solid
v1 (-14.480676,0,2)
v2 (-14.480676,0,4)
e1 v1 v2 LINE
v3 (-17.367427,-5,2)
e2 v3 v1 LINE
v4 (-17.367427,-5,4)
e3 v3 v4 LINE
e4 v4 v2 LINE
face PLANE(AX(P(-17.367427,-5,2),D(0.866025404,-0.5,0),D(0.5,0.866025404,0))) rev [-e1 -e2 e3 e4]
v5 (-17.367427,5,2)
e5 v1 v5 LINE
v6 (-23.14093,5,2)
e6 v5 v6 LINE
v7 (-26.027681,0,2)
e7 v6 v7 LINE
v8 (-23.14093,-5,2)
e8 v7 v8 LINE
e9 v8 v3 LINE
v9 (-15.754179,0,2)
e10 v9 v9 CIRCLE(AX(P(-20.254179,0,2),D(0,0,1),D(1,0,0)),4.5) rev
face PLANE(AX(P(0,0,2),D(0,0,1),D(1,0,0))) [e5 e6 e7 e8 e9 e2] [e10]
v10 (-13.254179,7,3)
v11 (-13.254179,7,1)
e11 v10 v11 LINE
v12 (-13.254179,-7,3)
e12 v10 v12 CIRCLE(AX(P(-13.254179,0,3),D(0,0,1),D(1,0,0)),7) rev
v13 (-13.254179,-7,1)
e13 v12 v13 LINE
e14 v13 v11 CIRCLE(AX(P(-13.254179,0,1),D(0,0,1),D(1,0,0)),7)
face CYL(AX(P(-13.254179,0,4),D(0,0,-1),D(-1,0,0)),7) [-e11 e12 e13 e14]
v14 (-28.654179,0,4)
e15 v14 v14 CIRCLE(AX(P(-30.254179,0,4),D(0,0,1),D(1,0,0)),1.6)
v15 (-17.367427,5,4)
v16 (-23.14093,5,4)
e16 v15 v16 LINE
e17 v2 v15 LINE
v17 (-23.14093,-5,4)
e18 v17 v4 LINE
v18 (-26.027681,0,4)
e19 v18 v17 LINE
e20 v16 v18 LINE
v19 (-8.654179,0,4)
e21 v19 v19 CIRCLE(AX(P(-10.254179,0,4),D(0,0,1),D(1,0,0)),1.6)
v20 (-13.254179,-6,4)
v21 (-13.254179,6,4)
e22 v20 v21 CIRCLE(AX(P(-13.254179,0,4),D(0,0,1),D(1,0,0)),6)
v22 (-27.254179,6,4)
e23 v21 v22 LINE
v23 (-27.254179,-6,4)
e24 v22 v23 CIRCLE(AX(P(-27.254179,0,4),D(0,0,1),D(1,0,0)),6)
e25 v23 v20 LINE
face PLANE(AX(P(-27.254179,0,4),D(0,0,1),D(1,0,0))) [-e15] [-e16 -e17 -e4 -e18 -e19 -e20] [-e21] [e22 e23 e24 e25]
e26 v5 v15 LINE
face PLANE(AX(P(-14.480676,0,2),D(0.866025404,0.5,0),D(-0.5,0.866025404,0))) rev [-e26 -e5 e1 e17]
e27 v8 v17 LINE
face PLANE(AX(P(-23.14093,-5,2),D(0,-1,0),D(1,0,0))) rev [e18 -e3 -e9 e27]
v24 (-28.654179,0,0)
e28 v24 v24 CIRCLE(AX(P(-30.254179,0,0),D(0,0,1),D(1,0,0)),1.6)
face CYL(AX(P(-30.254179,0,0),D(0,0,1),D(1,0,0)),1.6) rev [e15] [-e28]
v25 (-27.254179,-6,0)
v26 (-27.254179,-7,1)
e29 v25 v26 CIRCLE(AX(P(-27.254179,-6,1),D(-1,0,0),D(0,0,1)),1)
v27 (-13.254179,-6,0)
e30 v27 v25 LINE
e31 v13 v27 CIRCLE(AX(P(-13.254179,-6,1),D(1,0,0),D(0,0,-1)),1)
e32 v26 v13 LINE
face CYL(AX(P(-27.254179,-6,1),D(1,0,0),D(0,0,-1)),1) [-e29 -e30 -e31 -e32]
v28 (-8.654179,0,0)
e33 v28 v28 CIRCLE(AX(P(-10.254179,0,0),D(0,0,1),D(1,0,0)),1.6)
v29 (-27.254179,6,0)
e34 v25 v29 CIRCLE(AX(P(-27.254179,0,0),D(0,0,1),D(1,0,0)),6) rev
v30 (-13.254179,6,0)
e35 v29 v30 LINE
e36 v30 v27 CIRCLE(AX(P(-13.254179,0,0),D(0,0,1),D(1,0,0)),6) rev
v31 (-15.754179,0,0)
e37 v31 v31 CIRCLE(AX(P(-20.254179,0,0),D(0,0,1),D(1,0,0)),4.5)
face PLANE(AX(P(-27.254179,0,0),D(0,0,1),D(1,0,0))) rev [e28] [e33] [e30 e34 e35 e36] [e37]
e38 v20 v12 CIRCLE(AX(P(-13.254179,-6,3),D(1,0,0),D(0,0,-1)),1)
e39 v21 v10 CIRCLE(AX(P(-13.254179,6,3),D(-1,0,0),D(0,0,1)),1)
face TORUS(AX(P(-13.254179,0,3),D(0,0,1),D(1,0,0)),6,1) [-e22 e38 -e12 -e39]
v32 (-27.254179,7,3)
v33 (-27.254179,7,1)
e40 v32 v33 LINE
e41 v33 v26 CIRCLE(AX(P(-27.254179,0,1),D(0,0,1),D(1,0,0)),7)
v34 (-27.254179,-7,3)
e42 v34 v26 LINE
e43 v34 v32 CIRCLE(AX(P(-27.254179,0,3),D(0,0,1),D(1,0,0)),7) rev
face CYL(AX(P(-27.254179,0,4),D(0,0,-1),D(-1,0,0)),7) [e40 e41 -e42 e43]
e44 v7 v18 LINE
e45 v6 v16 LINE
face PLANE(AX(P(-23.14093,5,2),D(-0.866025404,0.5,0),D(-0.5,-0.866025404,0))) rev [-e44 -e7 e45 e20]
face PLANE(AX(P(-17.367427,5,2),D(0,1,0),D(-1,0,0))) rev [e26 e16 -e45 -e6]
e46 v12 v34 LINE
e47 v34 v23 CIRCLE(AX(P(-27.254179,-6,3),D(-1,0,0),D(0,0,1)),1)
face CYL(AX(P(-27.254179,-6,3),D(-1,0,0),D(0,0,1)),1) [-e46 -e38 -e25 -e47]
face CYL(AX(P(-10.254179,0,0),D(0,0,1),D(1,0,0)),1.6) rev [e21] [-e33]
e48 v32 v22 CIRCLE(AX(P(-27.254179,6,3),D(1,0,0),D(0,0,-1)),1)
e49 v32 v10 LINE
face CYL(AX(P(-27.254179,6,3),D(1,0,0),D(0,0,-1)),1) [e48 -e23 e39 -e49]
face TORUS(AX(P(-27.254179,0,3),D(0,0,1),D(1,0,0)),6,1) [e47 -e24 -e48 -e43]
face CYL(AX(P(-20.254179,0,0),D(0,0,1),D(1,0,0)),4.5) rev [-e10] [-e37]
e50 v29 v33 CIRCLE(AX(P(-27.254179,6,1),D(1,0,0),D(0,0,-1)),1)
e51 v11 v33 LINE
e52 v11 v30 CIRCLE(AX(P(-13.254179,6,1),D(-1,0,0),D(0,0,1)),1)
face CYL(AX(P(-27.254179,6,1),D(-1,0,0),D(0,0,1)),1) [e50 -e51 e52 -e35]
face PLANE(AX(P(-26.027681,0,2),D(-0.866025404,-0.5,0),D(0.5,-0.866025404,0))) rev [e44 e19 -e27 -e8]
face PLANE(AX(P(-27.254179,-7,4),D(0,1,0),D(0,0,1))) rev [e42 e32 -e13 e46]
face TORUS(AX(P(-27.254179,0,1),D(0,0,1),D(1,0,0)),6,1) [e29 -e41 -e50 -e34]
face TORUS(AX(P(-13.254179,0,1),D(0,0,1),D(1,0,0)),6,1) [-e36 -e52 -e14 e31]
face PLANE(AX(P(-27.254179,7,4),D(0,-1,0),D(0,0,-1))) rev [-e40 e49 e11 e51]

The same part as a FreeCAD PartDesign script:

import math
import FreeCAD as App
import Part
import Sketcher

V = App.Vector
Q = App.Units.Quantity


def edges_at(feature, points):
    """Names of the edges that pass closest to the given points."""
    edges = feature.Shape.Edges
    near = lambda p: min(range(len(edges)), key=lambda i: edges[i].distToShape(Part.Vertex(*p))[0])
    return sorted({f"Edge{near(p) + 1}" for p in points})


def add_polygon(sketch, points):
    """Adds a closed chain of lines whose ends are joined by coincident constraints."""
    first, n = sketch.GeometryCount, len(points)
    for a, b in zip(points, points[1:] + points[:1]):
        sketch.addGeometry(Part.LineSegment(App.Vector(*a, 0), App.Vector(*b, 0)), False)
    for i in range(n):
        sketch.addConstraint(Sketcher.Constraint("Coincident", first + i, 2, first + (i + 1) % n, 1))

doc = App.newDocument("Part")
body = doc.addObject("PartDesign::Body", "Body")

sketch1 = body.newObject("Sketcher::SketchObject", "Sketch")
sketch1.AttachmentSupport = (doc.getObject("XY_Plane"), [""])
sketch1.MapMode = "FlatFace"
sketch1.addGeometry(Part.LineSegment(V(-13.254179, 7, 0), V(-27.254179, 7, 0)), False)
sketch1.addGeometry(Part.ArcOfCircle(Part.Circle(V(-27.254179, 0, 0), V(0, 0, 1), 7), math.radians(90), math.radians(270)), False)
sketch1.addGeometry(Part.LineSegment(V(-27.254179, -7, 0), V(-13.254179, -7, 0)), False)
sketch1.addGeometry(Part.ArcOfCircle(Part.Circle(V(-13.254179, 0, 0), V(0, 0, 1), 7), math.radians(-90), math.radians(90)), False)
sketch1.addConstraint(Sketcher.Constraint("Tangent", 0, 2, 1, 1))
sketch1.addConstraint(Sketcher.Constraint("Tangent", 1, 2, 2, 1))
sketch1.addConstraint(Sketcher.Constraint("Tangent", 2, 2, 3, 1))
sketch1.addConstraint(Sketcher.Constraint("Tangent", 3, 2, 0, 1))
sketch1.addConstraint(Sketcher.Constraint("Horizontal", 0))
sketch1.addConstraint(Sketcher.Constraint("Horizontal", 2))
sketch1.addConstraint(Sketcher.Constraint("PointOnObject", 1, 3, -1))
sketch1.addConstraint(Sketcher.Constraint("Radius", 1, Q("7 mm")))
sketch1.addConstraint(Sketcher.Constraint("DistanceX", 0, 2, 0, 1, Q("14 mm")))
sketch1.addConstraint(Sketcher.Constraint("DistanceX", 1, 3, -1, 1, Q("27.254179 mm")))
pad1 = body.newObject("PartDesign::Pad", "Pad")
pad1.Profile = sketch1
pad1.Length = 4

sketch2 = body.newObject("Sketcher::SketchObject", "Sketch001")
sketch2.AttachmentSupport = (doc.getObject("XY_Plane"), [""])
sketch2.MapMode = "FlatFace"
sketch2.AttachmentOffset = App.Placement(V(0, 0, 4), App.Rotation())
sketch2.addGeometry(Part.Circle(V(-20.254179, 0, 0), V(0, 0, 1), 4.5), False)
sketch2.addGeometry(Part.Circle(V(-30.254179, 0, 0), V(0, 0, 1), 1.6), False)
sketch2.addGeometry(Part.Circle(V(-10.254179, 0, 0), V(0, 0, 1), 1.6), False)
sketch2.addConstraint(Sketcher.Constraint("Equal", 1, 2))
sketch2.addConstraint(Sketcher.Constraint("PointOnObject", 0, 3, -1))
sketch2.addConstraint(Sketcher.Constraint("PointOnObject", 1, 3, -1))
sketch2.addConstraint(Sketcher.Constraint("PointOnObject", 2, 3, -1))
sketch2.addConstraint(Sketcher.Constraint("Diameter", 0, Q("9 mm")))
sketch2.addConstraint(Sketcher.Constraint("Diameter", 1, Q("3.2 mm")))
sketch2.addConstraint(Sketcher.Constraint("DistanceX", 1, 3, 0, 3, Q("10 mm")))
sketch2.addConstraint(Sketcher.Constraint("DistanceX", 0, 3, 2, 3, Q("10 mm")))
sketch2.addConstraint(Sketcher.Constraint("DistanceX", 0, 3, -1, 1, Q("20.254179 mm")))
pocket1 = body.newObject("PartDesign::Pocket", "Pocket")
pocket1.Profile = sketch2
pocket1.Type = "ThroughAll"

sketch3 = body.newObject("Sketcher::SketchObject", "Sketch002")
sketch3.AttachmentSupport = (doc.getObject("XY_Plane"), [""])
sketch3.MapMode = "FlatFace"
sketch3.AttachmentOffset = App.Placement(V(0, 0, 4), App.Rotation())
add_polygon(sketch3, [(-23.14093, 5), (-26.027681, 0), (-23.14093, -5), (-17.367427, -5), (-14.480676, 0), (-17.367427, 5)])
sketch3.addConstraint(Sketcher.Constraint("Horizontal", 2))
sketch3.addConstraint(Sketcher.Constraint("Horizontal", 5))
sketch3.addConstraint(Sketcher.Constraint("Symmetric", 2, 2, 4, 2, -1))
sketch3.addConstraint(Sketcher.Constraint("PointOnObject", 0, 2, -1))
sketch3.addConstraint(Sketcher.Constraint("PointOnObject", 3, 2, -1))
sketch3.addConstraint(Sketcher.Constraint("Parallel", 0, 3))
sketch3.addConstraint(Sketcher.Constraint("Parallel", 1, 4))
sketch3.addConstraint(Sketcher.Constraint("Angle", 0, Q("-120 deg")))
sketch3.addConstraint(Sketcher.Constraint("DistanceY", 1, 2, -1, 1, Q("5 mm")))
sketch3.addConstraint(Sketcher.Constraint("DistanceX", 2, 1, 2, 2, Q("5.773503 mm")))
sketch3.addConstraint(Sketcher.Constraint("DistanceX", 0, 2, -1, 1, Q("26.027681 mm")))
pocket2 = body.newObject("PartDesign::Pocket", "Pocket001")
pocket2.Profile = sketch3
pocket2.Length = 2
doc.recompute()

fillet = body.newObject("PartDesign::Fillet", "Fillet")
fillet.Base = (pocket2, edges_at(pocket2, [
    (-6.254, 0, 4),
    (-20.254, 7, 4),
    (-34.254, 0, 4),
    (-20.254, 7, 0),
    (-6.254, 0, 0),
    (-20.254, -7, 0),
    (-34.254, 0, 0),
    (-20.254, -7, 4),
]))
fillet.Radius = 1

doc.recompute()
